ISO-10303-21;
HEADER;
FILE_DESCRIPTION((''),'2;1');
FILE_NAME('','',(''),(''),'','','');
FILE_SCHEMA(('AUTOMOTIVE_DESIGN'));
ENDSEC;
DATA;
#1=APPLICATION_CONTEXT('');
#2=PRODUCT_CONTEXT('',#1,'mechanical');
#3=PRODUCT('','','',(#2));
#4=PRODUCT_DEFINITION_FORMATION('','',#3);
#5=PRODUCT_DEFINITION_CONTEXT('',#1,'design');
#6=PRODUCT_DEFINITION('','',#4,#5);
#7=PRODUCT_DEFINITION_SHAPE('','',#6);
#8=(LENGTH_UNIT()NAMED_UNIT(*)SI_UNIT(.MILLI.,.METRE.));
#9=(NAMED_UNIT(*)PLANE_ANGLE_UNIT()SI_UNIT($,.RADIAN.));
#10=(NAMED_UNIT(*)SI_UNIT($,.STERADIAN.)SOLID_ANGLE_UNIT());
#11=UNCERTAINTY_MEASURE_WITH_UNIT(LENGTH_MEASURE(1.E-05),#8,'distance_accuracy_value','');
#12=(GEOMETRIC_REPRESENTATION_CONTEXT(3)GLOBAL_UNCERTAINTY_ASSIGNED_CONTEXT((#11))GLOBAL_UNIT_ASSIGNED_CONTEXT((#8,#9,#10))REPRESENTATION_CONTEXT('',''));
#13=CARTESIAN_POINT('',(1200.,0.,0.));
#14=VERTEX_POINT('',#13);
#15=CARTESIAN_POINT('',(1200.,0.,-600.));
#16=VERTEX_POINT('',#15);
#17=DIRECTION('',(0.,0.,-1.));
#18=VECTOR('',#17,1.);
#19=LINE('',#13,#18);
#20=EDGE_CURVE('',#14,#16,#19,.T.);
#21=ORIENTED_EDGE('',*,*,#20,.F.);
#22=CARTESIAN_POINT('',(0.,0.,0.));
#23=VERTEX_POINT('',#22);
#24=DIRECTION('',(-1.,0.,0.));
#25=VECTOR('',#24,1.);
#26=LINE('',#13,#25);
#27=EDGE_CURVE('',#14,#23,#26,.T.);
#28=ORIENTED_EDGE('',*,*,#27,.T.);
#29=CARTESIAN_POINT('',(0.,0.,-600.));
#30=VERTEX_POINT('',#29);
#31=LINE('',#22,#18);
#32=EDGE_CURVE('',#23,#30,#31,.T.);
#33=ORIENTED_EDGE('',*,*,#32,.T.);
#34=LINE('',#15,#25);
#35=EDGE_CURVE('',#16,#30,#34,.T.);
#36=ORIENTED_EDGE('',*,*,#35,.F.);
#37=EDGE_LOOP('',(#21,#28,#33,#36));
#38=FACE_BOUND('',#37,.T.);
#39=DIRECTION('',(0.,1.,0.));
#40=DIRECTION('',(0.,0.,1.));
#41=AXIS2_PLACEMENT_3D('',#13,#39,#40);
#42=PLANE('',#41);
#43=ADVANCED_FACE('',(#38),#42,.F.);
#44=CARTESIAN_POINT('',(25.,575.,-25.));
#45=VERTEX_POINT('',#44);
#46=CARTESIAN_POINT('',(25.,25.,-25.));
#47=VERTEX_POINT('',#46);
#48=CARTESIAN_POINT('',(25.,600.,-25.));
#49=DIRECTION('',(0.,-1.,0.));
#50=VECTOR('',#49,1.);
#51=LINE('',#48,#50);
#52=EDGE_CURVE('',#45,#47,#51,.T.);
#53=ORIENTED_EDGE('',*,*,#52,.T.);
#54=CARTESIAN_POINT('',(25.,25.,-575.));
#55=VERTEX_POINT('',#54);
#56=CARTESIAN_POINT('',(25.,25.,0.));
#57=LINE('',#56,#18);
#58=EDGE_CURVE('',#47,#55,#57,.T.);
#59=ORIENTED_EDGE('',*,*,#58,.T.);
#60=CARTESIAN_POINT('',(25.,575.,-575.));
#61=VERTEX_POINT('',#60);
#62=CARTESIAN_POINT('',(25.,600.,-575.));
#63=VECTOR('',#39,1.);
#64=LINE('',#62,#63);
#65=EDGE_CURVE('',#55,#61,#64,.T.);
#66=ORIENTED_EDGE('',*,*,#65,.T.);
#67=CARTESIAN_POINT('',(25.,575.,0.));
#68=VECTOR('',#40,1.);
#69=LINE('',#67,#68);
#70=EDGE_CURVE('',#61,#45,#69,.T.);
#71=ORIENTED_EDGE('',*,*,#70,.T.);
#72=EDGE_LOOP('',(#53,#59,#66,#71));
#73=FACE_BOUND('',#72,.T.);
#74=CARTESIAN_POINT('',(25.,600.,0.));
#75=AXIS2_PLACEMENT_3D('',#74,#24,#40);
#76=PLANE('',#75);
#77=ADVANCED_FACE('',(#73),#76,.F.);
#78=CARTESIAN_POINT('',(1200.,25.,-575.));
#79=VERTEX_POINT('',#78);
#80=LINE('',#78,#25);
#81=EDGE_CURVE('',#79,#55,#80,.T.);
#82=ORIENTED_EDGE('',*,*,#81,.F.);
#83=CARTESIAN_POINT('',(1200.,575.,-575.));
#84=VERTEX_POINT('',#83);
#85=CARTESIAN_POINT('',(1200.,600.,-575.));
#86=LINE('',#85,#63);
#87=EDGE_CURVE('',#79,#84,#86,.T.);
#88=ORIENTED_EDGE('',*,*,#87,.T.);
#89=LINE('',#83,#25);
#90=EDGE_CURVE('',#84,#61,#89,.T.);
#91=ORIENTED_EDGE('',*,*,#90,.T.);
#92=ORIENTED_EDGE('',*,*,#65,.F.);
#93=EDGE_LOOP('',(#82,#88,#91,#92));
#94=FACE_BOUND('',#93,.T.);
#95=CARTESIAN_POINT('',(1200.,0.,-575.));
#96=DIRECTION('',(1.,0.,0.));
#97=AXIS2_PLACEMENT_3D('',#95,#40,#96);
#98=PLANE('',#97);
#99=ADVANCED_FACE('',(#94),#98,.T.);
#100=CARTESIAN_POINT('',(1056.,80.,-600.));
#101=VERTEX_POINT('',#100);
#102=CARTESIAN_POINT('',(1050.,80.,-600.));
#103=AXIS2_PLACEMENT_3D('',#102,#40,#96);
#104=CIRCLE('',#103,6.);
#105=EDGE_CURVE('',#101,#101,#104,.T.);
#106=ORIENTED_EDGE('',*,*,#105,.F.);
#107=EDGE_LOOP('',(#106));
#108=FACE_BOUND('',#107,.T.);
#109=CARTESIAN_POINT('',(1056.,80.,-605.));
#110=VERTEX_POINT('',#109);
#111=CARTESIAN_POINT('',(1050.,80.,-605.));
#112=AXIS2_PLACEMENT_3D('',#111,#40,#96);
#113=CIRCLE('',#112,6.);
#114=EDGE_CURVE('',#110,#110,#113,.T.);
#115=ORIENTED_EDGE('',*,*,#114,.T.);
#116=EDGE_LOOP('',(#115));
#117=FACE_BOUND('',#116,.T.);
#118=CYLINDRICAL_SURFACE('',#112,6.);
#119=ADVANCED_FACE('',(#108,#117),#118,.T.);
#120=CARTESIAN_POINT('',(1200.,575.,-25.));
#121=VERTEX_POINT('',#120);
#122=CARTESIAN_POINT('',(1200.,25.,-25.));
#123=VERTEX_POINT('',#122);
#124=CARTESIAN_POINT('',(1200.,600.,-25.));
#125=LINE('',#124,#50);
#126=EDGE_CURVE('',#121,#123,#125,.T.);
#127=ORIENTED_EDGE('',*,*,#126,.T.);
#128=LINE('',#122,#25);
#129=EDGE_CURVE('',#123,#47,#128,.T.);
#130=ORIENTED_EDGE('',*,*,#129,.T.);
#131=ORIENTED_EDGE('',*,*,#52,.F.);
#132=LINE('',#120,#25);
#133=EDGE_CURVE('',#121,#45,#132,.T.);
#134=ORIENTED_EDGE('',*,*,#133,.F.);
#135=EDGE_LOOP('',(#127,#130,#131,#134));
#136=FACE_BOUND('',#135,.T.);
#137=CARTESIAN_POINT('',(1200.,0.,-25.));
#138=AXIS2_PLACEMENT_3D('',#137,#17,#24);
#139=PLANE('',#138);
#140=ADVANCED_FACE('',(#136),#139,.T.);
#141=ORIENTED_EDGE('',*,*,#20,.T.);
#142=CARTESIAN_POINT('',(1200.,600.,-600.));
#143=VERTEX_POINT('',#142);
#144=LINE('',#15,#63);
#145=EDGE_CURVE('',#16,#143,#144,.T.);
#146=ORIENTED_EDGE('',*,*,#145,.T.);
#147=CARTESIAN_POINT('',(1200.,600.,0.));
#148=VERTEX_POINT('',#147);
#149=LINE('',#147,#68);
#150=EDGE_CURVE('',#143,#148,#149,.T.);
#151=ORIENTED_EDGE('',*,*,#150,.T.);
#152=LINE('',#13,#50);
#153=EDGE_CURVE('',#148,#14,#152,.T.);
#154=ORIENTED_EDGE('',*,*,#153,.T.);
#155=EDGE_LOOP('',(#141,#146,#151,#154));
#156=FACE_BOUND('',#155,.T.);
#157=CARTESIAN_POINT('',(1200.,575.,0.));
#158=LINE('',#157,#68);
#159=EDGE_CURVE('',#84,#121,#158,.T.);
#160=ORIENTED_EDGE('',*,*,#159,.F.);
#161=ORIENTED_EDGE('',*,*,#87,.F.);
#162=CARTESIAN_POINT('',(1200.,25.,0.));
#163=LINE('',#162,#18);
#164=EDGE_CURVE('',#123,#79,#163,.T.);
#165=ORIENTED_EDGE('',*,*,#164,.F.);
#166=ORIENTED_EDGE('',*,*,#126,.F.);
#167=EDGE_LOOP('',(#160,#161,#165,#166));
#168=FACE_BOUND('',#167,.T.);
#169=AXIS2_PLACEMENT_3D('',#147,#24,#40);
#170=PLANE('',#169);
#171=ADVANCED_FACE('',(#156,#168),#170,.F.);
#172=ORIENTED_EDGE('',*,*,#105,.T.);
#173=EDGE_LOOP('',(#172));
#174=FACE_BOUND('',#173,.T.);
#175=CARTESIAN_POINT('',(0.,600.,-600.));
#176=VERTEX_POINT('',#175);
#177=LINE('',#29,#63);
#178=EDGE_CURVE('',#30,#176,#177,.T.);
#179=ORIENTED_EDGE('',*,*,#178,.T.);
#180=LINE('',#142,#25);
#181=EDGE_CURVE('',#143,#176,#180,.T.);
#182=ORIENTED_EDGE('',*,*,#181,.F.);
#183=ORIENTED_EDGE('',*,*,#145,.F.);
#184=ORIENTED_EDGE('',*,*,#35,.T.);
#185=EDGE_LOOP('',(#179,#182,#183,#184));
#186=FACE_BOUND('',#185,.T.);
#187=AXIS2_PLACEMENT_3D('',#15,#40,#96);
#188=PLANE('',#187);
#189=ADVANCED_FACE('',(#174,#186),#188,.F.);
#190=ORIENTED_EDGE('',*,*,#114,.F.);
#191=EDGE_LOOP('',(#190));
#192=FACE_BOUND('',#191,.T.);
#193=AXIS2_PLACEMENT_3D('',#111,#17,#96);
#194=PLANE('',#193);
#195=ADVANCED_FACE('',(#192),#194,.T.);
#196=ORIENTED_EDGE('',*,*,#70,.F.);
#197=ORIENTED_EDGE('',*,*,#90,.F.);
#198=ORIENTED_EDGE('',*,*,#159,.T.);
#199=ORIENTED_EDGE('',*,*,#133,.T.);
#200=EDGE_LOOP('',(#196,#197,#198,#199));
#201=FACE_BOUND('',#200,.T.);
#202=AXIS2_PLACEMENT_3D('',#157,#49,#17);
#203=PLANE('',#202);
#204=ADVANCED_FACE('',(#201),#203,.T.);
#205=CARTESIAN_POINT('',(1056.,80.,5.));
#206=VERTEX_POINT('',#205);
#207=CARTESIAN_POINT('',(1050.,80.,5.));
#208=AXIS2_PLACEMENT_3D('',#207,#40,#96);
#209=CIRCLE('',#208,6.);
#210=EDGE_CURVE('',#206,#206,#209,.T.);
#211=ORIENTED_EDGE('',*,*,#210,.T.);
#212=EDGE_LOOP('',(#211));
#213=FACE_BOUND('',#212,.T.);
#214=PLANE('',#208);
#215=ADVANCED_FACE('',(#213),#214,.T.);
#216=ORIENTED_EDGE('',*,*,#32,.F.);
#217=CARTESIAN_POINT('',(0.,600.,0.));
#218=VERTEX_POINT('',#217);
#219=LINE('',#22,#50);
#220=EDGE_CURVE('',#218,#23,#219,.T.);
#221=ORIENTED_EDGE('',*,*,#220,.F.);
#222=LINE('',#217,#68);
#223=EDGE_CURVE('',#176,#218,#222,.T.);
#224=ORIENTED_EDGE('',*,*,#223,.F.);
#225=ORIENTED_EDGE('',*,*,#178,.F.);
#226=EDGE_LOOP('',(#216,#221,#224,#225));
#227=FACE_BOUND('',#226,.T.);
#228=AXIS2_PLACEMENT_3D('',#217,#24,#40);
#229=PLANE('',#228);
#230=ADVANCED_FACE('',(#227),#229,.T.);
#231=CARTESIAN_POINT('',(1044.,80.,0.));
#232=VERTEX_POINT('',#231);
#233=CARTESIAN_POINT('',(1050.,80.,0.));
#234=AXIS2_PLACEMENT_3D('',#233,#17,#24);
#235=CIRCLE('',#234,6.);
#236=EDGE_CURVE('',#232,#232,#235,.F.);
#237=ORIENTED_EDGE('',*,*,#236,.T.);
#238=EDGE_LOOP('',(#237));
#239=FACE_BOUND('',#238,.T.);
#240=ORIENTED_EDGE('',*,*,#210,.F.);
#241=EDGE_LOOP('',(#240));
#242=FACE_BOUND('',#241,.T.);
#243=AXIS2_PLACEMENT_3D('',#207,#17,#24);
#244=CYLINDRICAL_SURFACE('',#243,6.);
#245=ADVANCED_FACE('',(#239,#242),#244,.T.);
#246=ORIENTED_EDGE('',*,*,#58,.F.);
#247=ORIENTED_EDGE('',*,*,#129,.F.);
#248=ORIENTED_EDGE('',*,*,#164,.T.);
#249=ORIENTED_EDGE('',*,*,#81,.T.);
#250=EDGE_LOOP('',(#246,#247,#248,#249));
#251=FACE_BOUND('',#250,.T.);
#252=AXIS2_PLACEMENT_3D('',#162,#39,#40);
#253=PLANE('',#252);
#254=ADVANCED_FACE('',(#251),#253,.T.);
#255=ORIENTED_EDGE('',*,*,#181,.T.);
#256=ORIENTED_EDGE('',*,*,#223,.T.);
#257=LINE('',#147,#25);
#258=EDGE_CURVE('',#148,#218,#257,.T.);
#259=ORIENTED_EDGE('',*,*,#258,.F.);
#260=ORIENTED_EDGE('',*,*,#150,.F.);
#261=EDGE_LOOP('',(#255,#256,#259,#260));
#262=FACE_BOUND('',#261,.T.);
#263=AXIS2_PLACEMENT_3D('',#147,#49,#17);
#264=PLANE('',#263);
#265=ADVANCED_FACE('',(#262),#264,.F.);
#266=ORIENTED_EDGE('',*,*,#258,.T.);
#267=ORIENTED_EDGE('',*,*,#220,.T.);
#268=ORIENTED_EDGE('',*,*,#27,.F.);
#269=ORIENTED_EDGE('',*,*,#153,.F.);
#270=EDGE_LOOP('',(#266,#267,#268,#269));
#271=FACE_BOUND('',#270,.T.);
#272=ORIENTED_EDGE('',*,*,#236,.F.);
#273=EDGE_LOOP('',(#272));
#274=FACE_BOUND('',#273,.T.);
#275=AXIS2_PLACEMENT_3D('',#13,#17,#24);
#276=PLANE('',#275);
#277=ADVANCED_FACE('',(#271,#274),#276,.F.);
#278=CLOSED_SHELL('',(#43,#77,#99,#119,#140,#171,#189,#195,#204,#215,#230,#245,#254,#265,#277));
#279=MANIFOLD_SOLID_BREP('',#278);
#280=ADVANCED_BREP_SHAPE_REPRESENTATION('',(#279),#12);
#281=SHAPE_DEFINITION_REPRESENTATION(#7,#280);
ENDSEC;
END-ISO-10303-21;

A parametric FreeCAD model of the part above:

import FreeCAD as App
import Part
import Sketcher
from FreeCAD import Vector


def faces_at(feature, points):
    """Names of the faces that lie closest to the given points."""
    faces = feature.Shape.Faces
    near = lambda p: min(range(len(faces)), key=lambda i: faces[i].distToShape(Part.Vertex(*p))[0])
    return sorted({f"Face{near(p) + 1}" for p in points})


def add_polygon(sketch, points):
    """Adds a closed chain of lines whose ends are joined by coincident constraints."""
    first, n = sketch.GeometryCount, len(points)
    for a, b in zip(points, points[1:] + points[:1]):
        sketch.addGeometry(Part.LineSegment(App.Vector(*a, 0), App.Vector(*b, 0)), False)
    for i in range(n):
        sketch.addConstraint(Sketcher.Constraint("Coincident", first + i, 2, first + (i + 1) % n, 1))

doc = App.newDocument("Part")
params = doc.addObject("Spreadsheet::Sheet", "Params")
for row, (alias, value) in enumerate([
    ("sketch1_width", "600 mm"),
    ("pad1_length", "1200 mm"),
    ("thickness_wall", "25 mm"),
    ("sketch2_diameter", "12 mm"),
    ("pad2_length", "5 mm"),
], start=1):
    params.set(f"A{row}", alias)
    params.set(f"B{row}", "=" + value)
    params.setAlias(f"B{row}", alias)

body = doc.addObject("PartDesign::Body", "Body")

sketch1 = body.newObject("Sketcher::SketchObject", "Sketch")
sketch1.AttachmentSupport = (doc.getObject("YZ_Plane"), [""])
sketch1.MapMode = "FlatFace"
add_polygon(sketch1, [(600, 0), (0, 0), (0, -600), (600, -600)])
sketch1.addConstraint(Sketcher.Constraint("Horizontal", 0))
sketch1.addConstraint(Sketcher.Constraint("Vertical", 1))
sketch1.addConstraint(Sketcher.Constraint("Horizontal", 2))
sketch1.addConstraint(Sketcher.Constraint("Vertical", 3))
sketch1.addConstraint(Sketcher.Constraint("Coincident", 0, 2, -1, 1))
sketch1.addConstraint(Sketcher.Constraint("Equal", 2, 1))
sketch1.addConstraint(Sketcher.Constraint("DistanceX", 0, 2, 0, 1, 600.0))
sketch1.setExpression("Constraints[10]", "Params.sketch1_width")
pad1 = body.newObject("PartDesign::Pad", "Pad")
pad1.Profile = sketch1
pad1.setExpression("Length", "Params.pad1_length")
doc.recompute()

thickness = body.newObject("PartDesign::Thickness", "Thickness")
thickness.Base = (pad1, faces_at(pad1, [(1200, 300, -300)]))
thickness.setExpression("Value", "Params.thickness_wall")
thickness.Reversed = True
thickness.Join = "Intersection"

sketch2 = body.newObject("Sketcher::SketchObject", "Sketch001")
sketch2.AttachmentSupport = (doc.getObject("XY_Plane"), [""])
sketch2.MapMode = "FlatFace"
sketch2.addGeometry(Part.Circle(Vector(1050, 80, 0), Vector(0, 0, 1), 6), False)
sketch2.addConstraint(Sketcher.Constraint("Diameter", 0, 12.0))
sketch2.addConstraint(Sketcher.Constraint("DistanceX", -1, 1, 0, 3, 1050.0))
sketch2.addConstraint(Sketcher.Constraint("DistanceY", -1, 1, 0, 3, 80.0))
sketch2.setExpression("Constraints[0]", "Params.sketch2_diameter")
pad2 = body.newObject("PartDesign::Pad", "Pad001")
pad2.Profile = sketch2
pad2.setExpression("Length", "Params.pad2_length")
doc.recompute()

datumplane = body.newObject("PartDesign::Plane", "DatumPlane")
datumplane.AttachmentSupport = (doc.getObject("XY_Plane"), [""])
datumplane.MapMode = "FlatFace"
datumplane.AttachmentOffset = App.Placement(Vector(0, 0, -300), App.Rotation())
mirrored = body.newObject("PartDesign::Mirrored", "Mirrored")
mirrored.Originals = [pad2]
mirrored.MirrorPlane = (datumplane, [""])
body.Tip = mirrored

doc.recompute()
